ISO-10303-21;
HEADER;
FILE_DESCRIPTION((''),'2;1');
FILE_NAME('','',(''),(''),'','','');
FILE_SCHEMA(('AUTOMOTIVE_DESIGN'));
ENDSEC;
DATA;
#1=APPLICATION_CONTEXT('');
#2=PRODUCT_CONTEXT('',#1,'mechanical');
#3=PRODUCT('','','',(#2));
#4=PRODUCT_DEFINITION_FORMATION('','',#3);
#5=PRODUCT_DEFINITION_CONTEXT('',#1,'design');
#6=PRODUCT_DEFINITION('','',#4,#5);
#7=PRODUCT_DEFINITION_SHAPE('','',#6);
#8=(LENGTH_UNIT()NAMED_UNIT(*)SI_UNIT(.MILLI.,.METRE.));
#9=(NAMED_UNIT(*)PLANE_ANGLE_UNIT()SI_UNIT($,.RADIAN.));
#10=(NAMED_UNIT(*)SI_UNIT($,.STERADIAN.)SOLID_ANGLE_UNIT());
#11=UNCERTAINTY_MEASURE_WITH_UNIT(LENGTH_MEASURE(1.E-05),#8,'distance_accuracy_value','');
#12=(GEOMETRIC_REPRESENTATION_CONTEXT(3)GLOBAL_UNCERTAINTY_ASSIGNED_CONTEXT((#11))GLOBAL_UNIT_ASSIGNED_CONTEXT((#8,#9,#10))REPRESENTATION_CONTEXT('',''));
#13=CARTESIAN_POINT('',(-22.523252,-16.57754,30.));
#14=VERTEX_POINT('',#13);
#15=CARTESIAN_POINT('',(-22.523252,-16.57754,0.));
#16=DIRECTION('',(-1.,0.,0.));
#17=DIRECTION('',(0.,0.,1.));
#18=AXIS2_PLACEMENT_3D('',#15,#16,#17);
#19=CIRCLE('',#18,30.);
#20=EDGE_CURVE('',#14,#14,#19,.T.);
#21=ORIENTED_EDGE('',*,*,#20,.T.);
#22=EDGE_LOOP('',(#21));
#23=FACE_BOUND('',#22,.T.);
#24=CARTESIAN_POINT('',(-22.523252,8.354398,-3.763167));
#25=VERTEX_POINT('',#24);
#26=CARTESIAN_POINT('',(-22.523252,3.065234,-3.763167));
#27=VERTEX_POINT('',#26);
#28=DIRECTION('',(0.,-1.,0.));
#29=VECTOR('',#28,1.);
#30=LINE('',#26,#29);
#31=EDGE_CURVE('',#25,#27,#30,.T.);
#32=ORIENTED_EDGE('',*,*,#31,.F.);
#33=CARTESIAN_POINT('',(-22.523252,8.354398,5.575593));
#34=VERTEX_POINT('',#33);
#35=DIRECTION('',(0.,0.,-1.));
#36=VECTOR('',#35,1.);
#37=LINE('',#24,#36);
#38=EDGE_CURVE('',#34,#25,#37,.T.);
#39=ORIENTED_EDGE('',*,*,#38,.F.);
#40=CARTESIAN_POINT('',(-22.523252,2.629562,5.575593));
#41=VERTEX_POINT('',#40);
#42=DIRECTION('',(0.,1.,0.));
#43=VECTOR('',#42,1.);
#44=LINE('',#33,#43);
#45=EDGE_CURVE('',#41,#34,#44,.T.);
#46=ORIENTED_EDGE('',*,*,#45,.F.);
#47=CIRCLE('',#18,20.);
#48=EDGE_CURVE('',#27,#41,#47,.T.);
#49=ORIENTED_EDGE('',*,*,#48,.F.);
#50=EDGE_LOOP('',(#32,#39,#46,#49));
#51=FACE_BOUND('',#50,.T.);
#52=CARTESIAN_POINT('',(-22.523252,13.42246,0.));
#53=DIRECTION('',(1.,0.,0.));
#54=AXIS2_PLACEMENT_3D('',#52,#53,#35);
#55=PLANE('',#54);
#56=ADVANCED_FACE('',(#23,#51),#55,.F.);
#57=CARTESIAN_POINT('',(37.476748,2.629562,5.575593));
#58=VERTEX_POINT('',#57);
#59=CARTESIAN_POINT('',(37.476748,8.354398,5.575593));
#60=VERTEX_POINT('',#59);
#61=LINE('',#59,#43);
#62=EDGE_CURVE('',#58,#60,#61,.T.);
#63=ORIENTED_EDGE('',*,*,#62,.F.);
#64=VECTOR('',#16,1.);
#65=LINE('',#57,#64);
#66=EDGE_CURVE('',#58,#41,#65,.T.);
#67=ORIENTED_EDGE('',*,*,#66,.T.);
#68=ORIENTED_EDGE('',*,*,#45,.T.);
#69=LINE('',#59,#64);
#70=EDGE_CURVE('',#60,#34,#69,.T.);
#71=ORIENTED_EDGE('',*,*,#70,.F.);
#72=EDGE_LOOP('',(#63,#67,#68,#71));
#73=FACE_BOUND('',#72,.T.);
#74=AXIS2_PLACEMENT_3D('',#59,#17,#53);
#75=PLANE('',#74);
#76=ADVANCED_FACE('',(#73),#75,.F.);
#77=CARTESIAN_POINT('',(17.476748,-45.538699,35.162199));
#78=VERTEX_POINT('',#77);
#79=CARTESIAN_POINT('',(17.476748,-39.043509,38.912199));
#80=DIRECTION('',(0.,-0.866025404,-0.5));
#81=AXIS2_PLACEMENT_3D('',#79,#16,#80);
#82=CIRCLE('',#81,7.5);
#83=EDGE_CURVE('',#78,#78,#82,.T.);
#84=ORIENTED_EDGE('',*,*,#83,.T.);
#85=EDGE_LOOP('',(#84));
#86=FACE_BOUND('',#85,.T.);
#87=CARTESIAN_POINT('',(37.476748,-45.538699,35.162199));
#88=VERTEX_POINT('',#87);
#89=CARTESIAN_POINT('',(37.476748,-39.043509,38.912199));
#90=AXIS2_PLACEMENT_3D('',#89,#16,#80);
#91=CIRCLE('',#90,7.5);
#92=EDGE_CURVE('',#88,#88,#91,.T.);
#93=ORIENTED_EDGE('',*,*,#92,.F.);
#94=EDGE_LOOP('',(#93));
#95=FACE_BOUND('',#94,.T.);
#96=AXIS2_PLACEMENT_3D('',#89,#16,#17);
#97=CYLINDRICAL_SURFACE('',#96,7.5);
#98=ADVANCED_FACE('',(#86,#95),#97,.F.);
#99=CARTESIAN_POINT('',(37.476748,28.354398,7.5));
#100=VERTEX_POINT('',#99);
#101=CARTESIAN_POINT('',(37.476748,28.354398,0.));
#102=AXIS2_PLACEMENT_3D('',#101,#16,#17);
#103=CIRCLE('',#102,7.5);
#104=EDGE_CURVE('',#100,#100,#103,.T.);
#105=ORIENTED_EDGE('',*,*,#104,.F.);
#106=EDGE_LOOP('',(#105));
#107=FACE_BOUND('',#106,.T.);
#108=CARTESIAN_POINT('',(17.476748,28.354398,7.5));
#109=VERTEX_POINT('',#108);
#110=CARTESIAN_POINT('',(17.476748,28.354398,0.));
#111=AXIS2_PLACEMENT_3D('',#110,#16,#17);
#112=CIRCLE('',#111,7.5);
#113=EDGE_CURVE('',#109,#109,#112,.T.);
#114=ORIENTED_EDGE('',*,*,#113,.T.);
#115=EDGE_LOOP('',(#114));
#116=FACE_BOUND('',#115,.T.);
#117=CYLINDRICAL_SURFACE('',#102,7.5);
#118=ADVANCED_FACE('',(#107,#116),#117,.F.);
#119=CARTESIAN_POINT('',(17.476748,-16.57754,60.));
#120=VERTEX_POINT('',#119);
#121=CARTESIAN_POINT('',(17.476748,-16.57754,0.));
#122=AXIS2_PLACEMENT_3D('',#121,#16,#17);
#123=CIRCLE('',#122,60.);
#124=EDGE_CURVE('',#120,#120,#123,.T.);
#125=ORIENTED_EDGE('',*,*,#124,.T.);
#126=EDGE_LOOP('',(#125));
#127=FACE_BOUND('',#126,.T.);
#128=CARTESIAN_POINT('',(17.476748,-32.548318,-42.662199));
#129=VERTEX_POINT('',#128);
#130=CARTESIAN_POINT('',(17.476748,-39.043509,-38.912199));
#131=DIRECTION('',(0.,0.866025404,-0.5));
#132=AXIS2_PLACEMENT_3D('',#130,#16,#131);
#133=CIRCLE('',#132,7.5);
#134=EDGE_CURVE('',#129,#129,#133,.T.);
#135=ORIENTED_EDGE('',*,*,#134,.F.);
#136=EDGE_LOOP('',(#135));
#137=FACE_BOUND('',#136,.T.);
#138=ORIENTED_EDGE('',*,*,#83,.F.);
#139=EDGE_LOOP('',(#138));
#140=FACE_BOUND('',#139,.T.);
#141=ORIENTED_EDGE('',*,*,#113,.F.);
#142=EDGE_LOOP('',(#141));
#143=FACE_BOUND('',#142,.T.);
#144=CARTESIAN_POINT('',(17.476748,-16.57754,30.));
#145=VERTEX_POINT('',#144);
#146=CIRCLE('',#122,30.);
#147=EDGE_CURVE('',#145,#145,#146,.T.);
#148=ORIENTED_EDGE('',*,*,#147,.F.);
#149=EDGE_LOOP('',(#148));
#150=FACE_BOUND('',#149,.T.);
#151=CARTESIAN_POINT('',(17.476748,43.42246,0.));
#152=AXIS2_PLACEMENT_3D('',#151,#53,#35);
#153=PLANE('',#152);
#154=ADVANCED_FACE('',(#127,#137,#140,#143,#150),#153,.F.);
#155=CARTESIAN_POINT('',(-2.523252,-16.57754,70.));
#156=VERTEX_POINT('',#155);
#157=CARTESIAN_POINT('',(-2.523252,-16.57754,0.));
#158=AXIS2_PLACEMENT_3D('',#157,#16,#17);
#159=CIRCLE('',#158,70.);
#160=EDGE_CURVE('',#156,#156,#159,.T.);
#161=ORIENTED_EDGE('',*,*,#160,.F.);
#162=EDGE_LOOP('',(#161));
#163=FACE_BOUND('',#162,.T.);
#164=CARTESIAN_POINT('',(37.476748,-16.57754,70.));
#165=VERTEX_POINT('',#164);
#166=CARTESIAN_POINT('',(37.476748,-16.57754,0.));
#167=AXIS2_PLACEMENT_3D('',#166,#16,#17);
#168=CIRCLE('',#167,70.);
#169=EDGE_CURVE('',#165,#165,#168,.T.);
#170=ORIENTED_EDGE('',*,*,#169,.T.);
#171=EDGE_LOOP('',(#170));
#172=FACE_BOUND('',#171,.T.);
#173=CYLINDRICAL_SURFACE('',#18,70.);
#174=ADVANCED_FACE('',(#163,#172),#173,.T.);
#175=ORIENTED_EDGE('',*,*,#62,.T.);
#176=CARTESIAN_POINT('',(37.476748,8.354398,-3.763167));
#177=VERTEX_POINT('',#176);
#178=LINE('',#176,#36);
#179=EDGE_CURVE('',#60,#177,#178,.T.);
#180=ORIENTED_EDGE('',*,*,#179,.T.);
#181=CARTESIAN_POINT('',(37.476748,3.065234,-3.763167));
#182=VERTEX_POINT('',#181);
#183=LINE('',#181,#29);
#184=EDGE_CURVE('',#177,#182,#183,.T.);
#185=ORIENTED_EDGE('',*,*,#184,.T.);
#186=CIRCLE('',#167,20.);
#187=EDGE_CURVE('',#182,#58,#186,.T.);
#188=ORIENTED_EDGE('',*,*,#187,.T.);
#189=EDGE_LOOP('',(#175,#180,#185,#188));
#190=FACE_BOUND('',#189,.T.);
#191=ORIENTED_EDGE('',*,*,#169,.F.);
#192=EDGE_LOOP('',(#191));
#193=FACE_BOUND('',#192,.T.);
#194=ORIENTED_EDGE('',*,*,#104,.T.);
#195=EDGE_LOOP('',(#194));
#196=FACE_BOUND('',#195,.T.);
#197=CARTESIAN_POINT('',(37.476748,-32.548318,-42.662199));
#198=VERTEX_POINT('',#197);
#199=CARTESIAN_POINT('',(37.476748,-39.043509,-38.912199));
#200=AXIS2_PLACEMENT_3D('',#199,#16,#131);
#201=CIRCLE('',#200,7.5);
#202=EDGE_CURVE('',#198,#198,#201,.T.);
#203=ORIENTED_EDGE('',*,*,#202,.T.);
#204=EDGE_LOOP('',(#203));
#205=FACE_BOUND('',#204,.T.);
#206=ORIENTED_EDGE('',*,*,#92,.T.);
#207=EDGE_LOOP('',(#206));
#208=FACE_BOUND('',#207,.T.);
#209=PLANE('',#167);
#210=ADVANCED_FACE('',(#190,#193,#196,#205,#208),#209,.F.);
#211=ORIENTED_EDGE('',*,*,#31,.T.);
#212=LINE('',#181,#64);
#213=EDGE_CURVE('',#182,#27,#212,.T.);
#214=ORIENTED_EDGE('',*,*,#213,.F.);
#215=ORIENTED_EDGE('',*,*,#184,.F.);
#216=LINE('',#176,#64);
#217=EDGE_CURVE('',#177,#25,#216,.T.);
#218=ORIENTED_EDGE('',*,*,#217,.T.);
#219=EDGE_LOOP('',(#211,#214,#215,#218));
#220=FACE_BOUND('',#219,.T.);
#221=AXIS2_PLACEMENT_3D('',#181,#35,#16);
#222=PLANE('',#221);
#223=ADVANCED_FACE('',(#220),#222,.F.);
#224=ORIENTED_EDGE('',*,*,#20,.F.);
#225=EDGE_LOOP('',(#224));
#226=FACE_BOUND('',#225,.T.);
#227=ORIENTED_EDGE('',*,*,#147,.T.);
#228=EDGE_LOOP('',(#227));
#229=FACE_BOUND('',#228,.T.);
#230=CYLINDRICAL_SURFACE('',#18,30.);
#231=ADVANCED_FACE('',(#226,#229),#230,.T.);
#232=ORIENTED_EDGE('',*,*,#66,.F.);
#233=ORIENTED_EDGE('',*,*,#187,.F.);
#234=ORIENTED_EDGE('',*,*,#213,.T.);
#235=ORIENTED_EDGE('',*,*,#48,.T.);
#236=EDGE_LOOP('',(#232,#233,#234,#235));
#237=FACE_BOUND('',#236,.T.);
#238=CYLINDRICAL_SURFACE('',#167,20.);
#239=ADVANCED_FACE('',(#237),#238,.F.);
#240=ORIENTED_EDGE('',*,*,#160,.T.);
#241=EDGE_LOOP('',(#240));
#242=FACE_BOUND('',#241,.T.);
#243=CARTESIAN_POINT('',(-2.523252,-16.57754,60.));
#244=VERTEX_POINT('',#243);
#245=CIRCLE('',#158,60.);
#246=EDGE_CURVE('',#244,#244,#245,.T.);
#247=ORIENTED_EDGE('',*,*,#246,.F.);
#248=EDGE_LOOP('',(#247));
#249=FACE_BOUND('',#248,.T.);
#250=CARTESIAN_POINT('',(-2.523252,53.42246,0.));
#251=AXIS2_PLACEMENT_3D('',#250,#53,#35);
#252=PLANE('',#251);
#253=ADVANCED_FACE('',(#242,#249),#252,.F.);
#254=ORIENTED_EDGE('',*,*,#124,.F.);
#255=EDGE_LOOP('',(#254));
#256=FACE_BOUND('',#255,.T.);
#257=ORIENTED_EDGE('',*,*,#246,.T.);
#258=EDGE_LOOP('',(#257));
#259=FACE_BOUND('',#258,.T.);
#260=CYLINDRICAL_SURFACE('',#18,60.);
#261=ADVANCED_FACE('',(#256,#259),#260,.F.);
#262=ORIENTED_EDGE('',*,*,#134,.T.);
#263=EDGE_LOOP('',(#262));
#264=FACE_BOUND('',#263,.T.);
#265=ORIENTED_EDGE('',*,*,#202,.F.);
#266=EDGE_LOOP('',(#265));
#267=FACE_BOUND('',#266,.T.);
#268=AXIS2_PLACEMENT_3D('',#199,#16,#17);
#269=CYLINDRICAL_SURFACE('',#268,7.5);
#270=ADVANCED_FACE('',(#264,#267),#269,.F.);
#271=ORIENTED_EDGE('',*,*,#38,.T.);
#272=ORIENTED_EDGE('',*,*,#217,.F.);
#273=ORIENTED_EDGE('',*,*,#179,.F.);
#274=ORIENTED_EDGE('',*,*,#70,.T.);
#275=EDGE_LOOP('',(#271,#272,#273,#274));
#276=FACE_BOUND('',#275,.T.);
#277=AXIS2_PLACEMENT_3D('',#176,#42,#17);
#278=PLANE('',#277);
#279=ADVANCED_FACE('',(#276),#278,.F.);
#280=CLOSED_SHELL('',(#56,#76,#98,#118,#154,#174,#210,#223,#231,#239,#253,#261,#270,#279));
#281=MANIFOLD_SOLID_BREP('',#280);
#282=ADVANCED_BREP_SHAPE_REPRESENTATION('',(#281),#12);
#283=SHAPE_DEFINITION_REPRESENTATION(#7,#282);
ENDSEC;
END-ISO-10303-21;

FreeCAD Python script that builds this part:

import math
import FreeCAD as App
import Part
import Sketcher
Q = App.Units.Quantity

doc = App.newDocument("Part")
body = doc.addObject("PartDesign::Body", "Body")

# Sketch on XY plane
sketch1 = body.newObject("Sketcher::SketchObject", "Sketch")
sketch1.AttachmentSupport = (doc.getObject("XY_Plane"), [""])
sketch1.MapMode = "FlatFace"
sketch1.addGeometry([
    Part.LineSegment(App.Vector(-23, 13, 0), App.Vector(-23, -17, 0)),  # 0
    Part.LineSegment(App.Vector(-23, -17, 0), App.Vector(37, -17, 0)),  # 1
    Part.LineSegment(App.Vector(37, -17, 0), App.Vector(37, 53, 0)),  # 2
    Part.LineSegment(App.Vector(37, 53, 0), App.Vector(-3, 53, 0)),  # 3
    Part.LineSegment(App.Vector(-3, 53, 0), App.Vector(-3, 43, 0)),  # 4
    Part.LineSegment(App.Vector(-3, 43, 0), App.Vector(17, 43, 0)),  # 5
    Part.LineSegment(App.Vector(17, 43, 0), App.Vector(17, 13, 0)),  # 6
    Part.LineSegment(App.Vector(17, 13, 0), App.Vector(-23, 13, 0)),  # 7
], False)
sketch1.addGeometry(Part.LineSegment(App.Vector(-23, -17, 0), App.Vector(37, -17, 0)), True)  # axis
sketch1.addConstraint([
    Sketcher.Constraint("Coincident", 0, 2, 1, 1),
    Sketcher.Constraint("Coincident", 1, 2, 2, 1),
    Sketcher.Constraint("Coincident", 2, 2, 3, 1),
    Sketcher.Constraint("Coincident", 3, 2, 4, 1),
    Sketcher.Constraint("Coincident", 4, 2, 5, 1),
    Sketcher.Constraint("Coincident", 5, 2, 6, 1),
    Sketcher.Constraint("Coincident", 6, 2, 7, 1),
    Sketcher.Constraint("Coincident", 7, 2, 0, 1),
    Sketcher.Constraint("Vertical", 0),
    Sketcher.Constraint("Horizontal", 1),
    Sketcher.Constraint("Vertical", 2),
    Sketcher.Constraint("Horizontal", 3),
    Sketcher.Constraint("Vertical", 4),
    Sketcher.Constraint("Horizontal", 5),
    Sketcher.Constraint("Vertical", 6),
    Sketcher.Constraint("Horizontal", 7),
    Sketcher.Constraint("Horizontal", 8),
    Sketcher.Constraint("Coincident", 8, 1, 0, 2),
    Sketcher.Constraint("Vertical", 2, 2, 8, 2),
    Sketcher.Constraint("Equal", 3, 7),
    Sketcher.Constraint("Equal", 0, 6),
    Sketcher.Constraint("DistanceX", 1, 1, 1, 2, Q("60 mm")),
    Sketcher.Constraint("DistanceX", 3, 2, 3, 1, Q("40 mm")),
    Sketcher.Constraint("DistanceY", 0, 2, 0, 1, Q("30 mm")),
    Sketcher.Constraint("DistanceY", 2, 1, 2, 2, Q("70 mm")),
    Sketcher.Constraint("DistanceY", 0, 2, -1, 1, Q("16.57754 mm")),
    Sketcher.Constraint("DistanceX", 0, 2, -1, 1, Q("22.523252 mm")),
])
revolution = body.newObject("PartDesign::Revolution", "Revolution")
revolution.Profile = sketch1
revolution.ReferenceAxis = (sketch1, ["Axis0"])
revolution.Angle = 360

# Sketch on YZ plane
sketch2 = body.newObject("Sketcher::SketchObject", "Sketch001")
sketch2.AttachmentSupport = (doc.getObject("YZ_Plane"), [""])
sketch2.MapMode = "FlatFace"
sketch2.AttachmentOffset = App.Placement(App.Vector(0, 0, -22.523252), App.Rotation())
sketch2.addGeometry([
    Part.LineSegment(App.Vector(8, -4, 0), App.Vector(3, -4, 0)),
    Part.ArcOfCircle(Part.Circle(App.Vector(-17, 0, 0), App.Vector(0, 0, 1), 20), math.radians(16), math.radians(349)),
    Part.LineSegment(App.Vector(3, 6, 0), App.Vector(8, 6, 0)),
    Part.LineSegment(App.Vector(8, 6, 0), App.Vector(8, -4, 0)),
], False)
sketch2.addConstraint([
    Sketcher.Constraint("Coincident", 0, 2, 1, 2),
    Sketcher.Constraint("Coincident", 1, 1, 2, 1),
    Sketcher.Constraint("Coincident", 2, 2, 3, 1),
    Sketcher.Constraint("Coincident", 3, 2, 0, 1),
    Sketcher.Constraint("Horizontal", 0),
    Sketcher.Constraint("Horizontal", 2),
    Sketcher.Constraint("Vertical", 3),
    Sketcher.Constraint("PointOnObject", 1, 3, -1),
    Sketcher.Constraint("Radius", 1, Q("20 mm")),
    Sketcher.Constraint("DistanceY", 3, 2, 3, 1, Q("9.338759 mm")),
    Sketcher.Constraint("DistanceX", 1, 3, 1, 1, Q("19.207102 mm")),
    Sketcher.Constraint("DistanceX", 0, 2, 0, 1, Q("5.289163 mm")),
    Sketcher.Constraint("DistanceX", 1, 3, -1, 1, Q("16.57754 mm")),
])
pocket1 = body.newObject("PartDesign::Pocket", "Pocket")
pocket1.Profile = sketch2
pocket1.Type = "ThroughAll"
pocket1.Reversed = True

# Sketch on YZ plane
sketch3 = body.newObject("Sketcher::SketchObject", "Sketch002")
sketch3.AttachmentSupport = (doc.getObject("YZ_Plane"), [""])
sketch3.MapMode = "FlatFace"
sketch3.AttachmentOffset = App.Placement(App.Vector(0, 0, 17.476748), App.Rotation())
sketch3.addGeometry(Part.Circle(App.Vector(28, 0, 0), App.Vector(0, 0, 1), 8), False)
sketch3.addConstraint([
    Sketcher.Constraint("PointOnObject", 0, 3, -1),
    Sketcher.Constraint("Diameter", 0, Q("15 mm")),
    Sketcher.Constraint("DistanceX", -1, 1, 0, 3, Q("28.354398 mm")),
])
pocket2 = body.newObject("PartDesign::Pocket", "Pocket001")
pocket2.Profile = sketch3
pocket2.Type = "ThroughAll"
pocket2.Reversed = True
doc.recompute()

datumline = body.newObject("PartDesign::Line", "DatumLine")
datumline.Placement = App.Placement(App.Vector(0, -16.57754, 0), App.Rotation(App.Vector(0, 0, 1), App.Vector(1, 0, 0)))
polarpattern = body.newObject("PartDesign::PolarPattern", "PolarPattern")
polarpattern.Originals = [pocket2]
polarpattern.Axis = (datumline, [""])
polarpattern.Angle = 360
polarpattern.Occurrences = 3
body.Tip = polarpattern

doc.recompute()
